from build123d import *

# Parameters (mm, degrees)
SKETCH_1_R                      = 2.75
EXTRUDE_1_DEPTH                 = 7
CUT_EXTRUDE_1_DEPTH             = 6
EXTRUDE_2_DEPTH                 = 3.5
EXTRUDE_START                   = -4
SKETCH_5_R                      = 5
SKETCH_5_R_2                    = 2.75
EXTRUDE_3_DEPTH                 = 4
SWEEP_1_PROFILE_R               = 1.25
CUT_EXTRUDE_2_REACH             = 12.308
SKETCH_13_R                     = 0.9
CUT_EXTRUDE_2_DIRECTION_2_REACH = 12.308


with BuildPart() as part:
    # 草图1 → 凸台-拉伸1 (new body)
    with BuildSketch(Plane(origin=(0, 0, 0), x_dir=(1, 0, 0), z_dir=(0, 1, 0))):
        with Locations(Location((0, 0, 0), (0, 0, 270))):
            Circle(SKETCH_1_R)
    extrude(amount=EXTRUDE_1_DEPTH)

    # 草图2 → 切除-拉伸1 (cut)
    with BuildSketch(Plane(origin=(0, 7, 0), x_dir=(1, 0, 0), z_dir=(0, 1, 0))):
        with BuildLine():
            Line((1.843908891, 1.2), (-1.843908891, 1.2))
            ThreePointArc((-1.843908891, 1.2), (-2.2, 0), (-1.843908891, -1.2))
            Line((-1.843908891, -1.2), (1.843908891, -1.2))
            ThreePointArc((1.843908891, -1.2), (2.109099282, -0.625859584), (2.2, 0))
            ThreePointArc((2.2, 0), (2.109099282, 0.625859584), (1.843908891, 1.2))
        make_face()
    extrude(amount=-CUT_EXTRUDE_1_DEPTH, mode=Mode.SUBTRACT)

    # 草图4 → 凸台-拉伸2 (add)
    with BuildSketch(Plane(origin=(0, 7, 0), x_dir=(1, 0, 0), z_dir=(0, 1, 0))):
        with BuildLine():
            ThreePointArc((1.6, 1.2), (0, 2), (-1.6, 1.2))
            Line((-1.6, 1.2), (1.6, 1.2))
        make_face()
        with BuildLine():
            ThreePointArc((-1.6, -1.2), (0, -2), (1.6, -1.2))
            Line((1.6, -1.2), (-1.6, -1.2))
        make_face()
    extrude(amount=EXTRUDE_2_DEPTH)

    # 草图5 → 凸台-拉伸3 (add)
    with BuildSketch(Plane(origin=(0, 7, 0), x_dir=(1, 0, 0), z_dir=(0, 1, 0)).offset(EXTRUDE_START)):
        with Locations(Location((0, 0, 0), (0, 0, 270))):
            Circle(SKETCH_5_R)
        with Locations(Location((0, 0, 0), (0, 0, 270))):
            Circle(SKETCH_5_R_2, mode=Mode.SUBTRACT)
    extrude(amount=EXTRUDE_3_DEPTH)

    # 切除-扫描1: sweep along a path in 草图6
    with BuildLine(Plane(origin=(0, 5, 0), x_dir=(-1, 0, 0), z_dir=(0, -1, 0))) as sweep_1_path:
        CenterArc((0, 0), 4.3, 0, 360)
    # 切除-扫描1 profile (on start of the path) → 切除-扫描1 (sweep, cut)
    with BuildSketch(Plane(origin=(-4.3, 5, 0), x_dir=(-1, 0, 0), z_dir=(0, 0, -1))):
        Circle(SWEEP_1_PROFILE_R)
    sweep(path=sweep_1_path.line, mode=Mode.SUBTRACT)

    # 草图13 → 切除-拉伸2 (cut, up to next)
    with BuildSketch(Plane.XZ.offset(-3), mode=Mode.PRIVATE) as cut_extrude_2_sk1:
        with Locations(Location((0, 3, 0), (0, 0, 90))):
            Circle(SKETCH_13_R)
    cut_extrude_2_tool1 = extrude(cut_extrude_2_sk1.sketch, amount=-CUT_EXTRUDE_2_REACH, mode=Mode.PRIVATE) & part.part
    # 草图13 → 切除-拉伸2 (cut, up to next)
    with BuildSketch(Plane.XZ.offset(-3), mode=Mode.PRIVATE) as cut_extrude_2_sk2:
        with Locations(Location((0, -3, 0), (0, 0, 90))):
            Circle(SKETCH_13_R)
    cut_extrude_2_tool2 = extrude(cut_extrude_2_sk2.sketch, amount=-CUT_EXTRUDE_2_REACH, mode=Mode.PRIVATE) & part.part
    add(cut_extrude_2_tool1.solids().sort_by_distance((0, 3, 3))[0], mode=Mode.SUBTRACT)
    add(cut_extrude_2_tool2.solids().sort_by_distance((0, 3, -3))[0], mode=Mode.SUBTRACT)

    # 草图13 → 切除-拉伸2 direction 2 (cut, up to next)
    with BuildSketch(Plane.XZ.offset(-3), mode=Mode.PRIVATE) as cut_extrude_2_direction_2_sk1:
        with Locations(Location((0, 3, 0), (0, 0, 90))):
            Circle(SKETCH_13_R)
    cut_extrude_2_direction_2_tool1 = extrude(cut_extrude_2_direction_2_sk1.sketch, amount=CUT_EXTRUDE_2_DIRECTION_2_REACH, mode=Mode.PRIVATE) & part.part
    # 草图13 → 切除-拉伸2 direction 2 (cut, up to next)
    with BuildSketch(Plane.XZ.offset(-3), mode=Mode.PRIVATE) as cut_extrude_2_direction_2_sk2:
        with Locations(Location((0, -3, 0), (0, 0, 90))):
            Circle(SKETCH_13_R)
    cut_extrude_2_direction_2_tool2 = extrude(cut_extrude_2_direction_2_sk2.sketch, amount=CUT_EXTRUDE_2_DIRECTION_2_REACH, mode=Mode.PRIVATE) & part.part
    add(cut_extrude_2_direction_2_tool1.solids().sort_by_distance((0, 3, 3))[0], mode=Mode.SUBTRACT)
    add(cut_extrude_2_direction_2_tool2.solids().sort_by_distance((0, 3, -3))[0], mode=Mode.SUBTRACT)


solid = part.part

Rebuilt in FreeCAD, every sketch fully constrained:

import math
import FreeCAD as App
import Part
import Sketcher
from FreeCAD import Vector

doc = App.newDocument("Part")
params = doc.addObject("Spreadsheet::Sheet", "Params")
for row, (alias, value) in enumerate([
    ("sketch1_diameter", "5.5 mm"),
    ("pad1_length", "7 mm"),
    ("sketch2_radius", "2.2 mm"),
    ("pocket1_length", "6 mm"),
    ("sketch3_radius", "2 mm"),
    ("sketch3_width", "3.2 mm"),
    ("pad2_length", "3.5 mm"),
    ("sketch4_diameter", "10 mm"),
    ("sketch4_diameter2", "5.5 mm"),
    ("pad3_length", "4 mm"),
    ("sketch5_diameter", "2.5 mm"),
    ("sketch6_diameter", "8.6 mm"),
    ("sketch7_diameter", "1.8 mm"),
    ("sketch8_diameter", "1.8 mm"),
    ("sketch9_diameter", "1.8 mm"),
    ("pocket4_length", "3 mm"),
    ("sketch10_diameter", "1.8 mm"),
    ("pocket5_length", "3 mm"),
], start=1):
    params.set(f"A{row}", alias)
    params.set(f"B{row}", "=" + value)
    params.setAlias(f"B{row}", alias)

body = doc.addObject("PartDesign::Body", "Body")

# Sketch on XZ plane
sketch1 = body.newObject("Sketcher::SketchObject", "Sketch")
sketch1.AttachmentSupport = (doc.getObject("XZ_Plane"), [""])
sketch1.MapMode = "FlatFace"
sketch1.addGeometry(Part.Circle(Vector(0, 0, 0), Vector(0, 0, 1), 2.8), False)
sketch1.addConstraint([
    Sketcher.Constraint("Coincident", 0, 3, -1, 1),
    Sketcher.Constraint("Diameter", 0, 5.5),
])
sketch1.setExpression("Constraints[1]", "Params.sketch1_diameter")
pad1 = body.newObject("PartDesign::Pad", "Pad")
pad1.Profile = sketch1
pad1.setExpression("Length", "Params.pad1_length")
pad1.Reversed = True

# Sketch on XZ plane
sketch2 = body.newObject("Sketcher::SketchObject", "Sketch001")
sketch2.AttachmentSupport = (doc.getObject("XZ_Plane"), [""])
sketch2.MapMode = "FlatFace"
sketch2.AttachmentOffset = App.Placement(Vector(0, 0, -7), App.Rotation())
sketch2.addGeometry([
    Part.LineSegment(Vector(1.8, -1.2, 0), Vector(-1.8, -1.2, 0)),  # 0
    Part.ArcOfCircle(Part.Circle(Vector(0, 0, 0), Vector(0, 0, 1), 2.2), math.radians(147), math.radians(213)),  # 1
    Part.LineSegment(Vector(-1.8, 1.2, 0), Vector(1.8, 1.2, 0)),  # 2
    Part.ArcOfCircle(Part.Circle(Vector(0, 0, 0), Vector(0, 0, 1), 2.2), math.radians(0), math.radians(33)),  # 3
    Part.ArcOfCircle(Part.Circle(Vector(0, 0, 0), Vector(0, 0, 1), 2.2), math.radians(-33), math.radians(0)),  # 4
], False)
sketch2.addConstraint([
    Sketcher.Constraint("Coincident", 0, 2, 1, 2),
    Sketcher.Constraint("Coincident", 1, 1, 2, 1),
    Sketcher.Constraint("Coincident", 2, 2, 3, 2),
    Sketcher.Constraint("Tangent", 3, 1, 4, 2),
    Sketcher.Constraint("Coincident", 4, 1, 0, 1),
    Sketcher.Constraint("Horizontal", 0),
    Sketcher.Constraint("Horizontal", 2),
    Sketcher.Constraint("Coincident", 1, 3, -1, 1),
    Sketcher.Constraint("Coincident", 3, 3, -1, 1),
    Sketcher.Constraint("Equal", 1, 3),
    Sketcher.Constraint("Equal", 3, 4),
    Sketcher.Constraint("PointOnObject", 3, 1, -1),
    Sketcher.Constraint("Vertical", 0, 2, 1, 1),
    Sketcher.Constraint("Radius", 1, 2.2),
    Sketcher.Constraint("DistanceY", 0, 2, -1, 1, 1.2),
])
sketch2.setExpression("Constraints[13]", "Params.sketch2_radius")
pocket1 = body.newObject("PartDesign::Pocket", "Pocket")
pocket1.Profile = sketch2
pocket1.setExpression("Length", "Params.pocket1_length")
pocket1.Reversed = True

# Sketch on XZ plane
sketch3 = body.newObject("Sketcher::SketchObject", "Sketch002")
sketch3.AttachmentSupport = (doc.getObject("XZ_Plane"), [""])
sketch3.MapMode = "FlatFace"
sketch3.AttachmentOffset = App.Placement(Vector(0, 0, -7), App.Rotation())
sketch3.addGeometry([
    Part.ArcOfCircle(Part.Circle(Vector(0, 0, 0), Vector(0, 0, 1), 2), math.radians(-143), math.radians(-37)),
    Part.LineSegment(Vector(-1.6, -1.2, 0), Vector(1.6, -1.2, 0)),
    Part.ArcOfCircle(Part.Circle(Vector(0, 0, 0), Vector(0, 0, 1), 2), math.radians(37), math.radians(143)),
    Part.LineSegment(Vector(1.6, 1.2, 0), Vector(-1.6, 1.2, 0)),
], False)
sketch3.addConstraint([
    Sketcher.Constraint("Coincident", 0, 1, 1, 1),
    Sketcher.Constraint("Coincident", 1, 2, 0, 2),
    Sketcher.Constraint("Coincident", 2, 1, 3, 1),
    Sketcher.Constraint("Coincident", 3, 2, 2, 2),
    Sketcher.Constraint("Horizontal", 1),
    Sketcher.Constraint("Horizontal", 3),
    Sketcher.Constraint("Coincident", 0, 3, -1, 1),
    Sketcher.Constraint("Coincident", 2, 3, -1, 1),
    Sketcher.Constraint("Equal", 0, 2),
    Sketcher.Constraint("Vertical", 1, 2, 2, 1),
    Sketcher.Constraint("Radius", 0, 2.0),
    Sketcher.Constraint("DistanceX", 1, 1, 1, 2, 3.2),
])
sketch3.setExpression("Constraints[10]", "Params.sketch3_radius")
sketch3.setExpression("Constraints[11]", "Params.sketch3_width")
pad2 = body.newObject("PartDesign::Pad", "Pad001")
pad2.Profile = sketch3
pad2.setExpression("Length", "Params.pad2_length")
pad2.Reversed = True

# Sketch on XZ plane
sketch4 = body.newObject("Sketcher::SketchObject", "Sketch003")
sketch4.AttachmentSupport = (doc.getObject("XZ_Plane"), [""])
sketch4.MapMode = "FlatFace"
sketch4.AttachmentOffset = App.Placement(Vector(0, 0, -3), App.Rotation())
sketch4.addGeometry([
    Part.Circle(Vector(0, 0, 0), Vector(0, 0, 1), 5),
    Part.Circle(Vector(0, 0, 0), Vector(0, 0, 1), 2.8),
], False)
sketch4.addConstraint([
    Sketcher.Constraint("Coincident", 0, 3, -1, 1),
    Sketcher.Constraint("Coincident", 1, 3, -1, 1),
    Sketcher.Constraint("Diameter", 0, 10.0),
    Sketcher.Constraint("Diameter", 1, 5.5),
])
sketch4.setExpression("Constraints[2]", "Params.sketch4_diameter")
sketch4.setExpression("Constraints[3]", "Params.sketch4_diameter2")
pad3 = body.newObject("PartDesign::Pad", "Pad002")
pad3.Profile = sketch4
pad3.setExpression("Length", "Params.pad3_length")
pad3.Reversed = True

# Sketch on XY plane
sketch5 = body.newObject("Sketcher::SketchObject", "Sketch004")
sketch5.AttachmentSupport = (doc.getObject("XY_Plane"), [""])
sketch5.MapMode = "FlatFace"
sketch5.addGeometry(Part.Circle(Vector(-4.3, 5, 0), Vector(0, 0, 1), 1.2), False)
sketch5.addConstraint([
    Sketcher.Constraint("Diameter", 0, 2.5),
    Sketcher.Constraint("DistanceY", -1, 1, 0, 3, 5.0),
    Sketcher.Constraint("DistanceX", 0, 3, -1, 1, 4.3),
])
sketch5.setExpression("Constraints[0]", "Params.sketch5_diameter")

# Sketch on XZ plane
sketch6 = body.newObject("Sketcher::SketchObject", "Sketch005")
sketch6.AttachmentSupport = (doc.getObject("XZ_Plane"), [""])
sketch6.MapMode = "FlatFace"
sketch6.AttachmentOffset = App.Placement(Vector(0, 0, -5), App.Rotation())
sketch6.addGeometry(Part.Circle(Vector(0, 0, 0), Vector(0, 0, 1), 4.3), False)
sketch6.addConstraint([
    Sketcher.Constraint("Coincident", 0, 3, -1, 1),
    Sketcher.Constraint("Diameter", 0, 8.6),
])
sketch6.setExpression("Constraints[1]", "Params.sketch6_diameter")
doc.recompute()

subtractivepipe = body.newObject("PartDesign::SubtractivePipe", "SubtractivePipe")
subtractivepipe.Profile = sketch5
subtractivepipe.Spine = (sketch6, ["Edge1"])

# Sketch on XZ plane
sketch7 = body.newObject("Sketcher::SketchObject", "Sketch006")
sketch7.AttachmentSupport = (doc.getObject("XZ_Plane"), [""])
sketch7.MapMode = "FlatFace"
sketch7.AttachmentOffset = App.Placement(Vector(0, 0, -3), App.Rotation())
sketch7.addGeometry(Part.Circle(Vector(0, 3, 0), Vector(0, 0, 1), 0.9), False)
sketch7.addConstraint([
    Sketcher.Constraint("PointOnObject", 0, 3, -2),
    Sketcher.Constraint("Diameter", 0, 1.8),
    Sketcher.Constraint("DistanceY", -1, 1, 0, 3, 3.0),
])
sketch7.setExpression("Constraints[1]", "Params.sketch7_diameter")
pocket2 = body.newObject("PartDesign::Pocket", "Pocket001")
pocket2.Profile = sketch7
pocket2.Type = "UpToFirst"

# Sketch on XZ plane
sketch8 = body.newObject("Sketcher::SketchObject", "Sketch007")
sketch8.AttachmentSupport = (doc.getObject("XZ_Plane"), [""])
sketch8.MapMode = "FlatFace"
sketch8.AttachmentOffset = App.Placement(Vector(0, 0, -3), App.Rotation())
sketch8.addGeometry(Part.Circle(Vector(0, -3, 0), Vector(0, 0, 1), 0.9), False)
sketch8.addConstraint([
    Sketcher.Constraint("PointOnObject", 0, 3, -2),
    Sketcher.Constraint("Diameter", 0, 1.8),
    Sketcher.Constraint("DistanceY", 0, 3, -1, 1, 3.0),
])
sketch8.setExpression("Constraints[1]", "Params.sketch8_diameter")
pocket3 = body.newObject("PartDesign::Pocket", "Pocket002")
pocket3.Profile = sketch8
pocket3.Type = "UpToFirst"

# Sketch on XZ plane
sketch9 = body.newObject("Sketcher::SketchObject", "Sketch008")
sketch9.AttachmentSupport = (doc.getObject("XZ_Plane"), [""])
sketch9.MapMode = "FlatFace"
sketch9.AttachmentOffset = App.Placement(Vector(0, 0, -3), App.Rotation())
sketch9.addGeometry(Part.Circle(Vector(0, 3, 0), Vector(0, 0, 1), 0.9), False)
sketch9.addConstraint([
    Sketcher.Constraint("PointOnObject", 0, 3, -2),
    Sketcher.Constraint("Diameter", 0, 1.8),
    Sketcher.Constraint("DistanceY", -1, 1, 0, 3, 3.0),
])
sketch9.setExpression("Constraints[1]", "Params.sketch9_diameter")
pocket4 = body.newObject("PartDesign::Pocket", "Pocket003")
pocket4.Profile = sketch9
pocket4.setExpression("Length", "Params.pocket4_length")
pocket4.Reversed = True

# Sketch on XZ plane
sketch10 = body.newObject("Sketcher::SketchObject", "Sketch009")
sketch10.AttachmentSupport = (doc.getObject("XZ_Plane"), [""])
sketch10.MapMode = "FlatFace"
sketch10.AttachmentOffset = App.Placement(Vector(0, 0, -3), App.Rotation())
sketch10.addGeometry(Part.Circle(Vector(0, -3, 0), Vector(0, 0, 1), 0.9), False)
sketch10.addConstraint([
    Sketcher.Constraint("PointOnObject", 0, 3, -2),
    Sketcher.Constraint("Diameter", 0, 1.8),
    Sketcher.Constraint("DistanceY", 0, 3, -1, 1, 3.0),
])
sketch10.setExpression("Constraints[1]", "Params.sketch10_diameter")
pocket5 = body.newObject("PartDesign::Pocket", "Pocket004")
pocket5.Profile = sketch10
pocket5.setExpression("Length", "Params.pocket5_length")
pocket5.Reversed = True

doc.recompute()
